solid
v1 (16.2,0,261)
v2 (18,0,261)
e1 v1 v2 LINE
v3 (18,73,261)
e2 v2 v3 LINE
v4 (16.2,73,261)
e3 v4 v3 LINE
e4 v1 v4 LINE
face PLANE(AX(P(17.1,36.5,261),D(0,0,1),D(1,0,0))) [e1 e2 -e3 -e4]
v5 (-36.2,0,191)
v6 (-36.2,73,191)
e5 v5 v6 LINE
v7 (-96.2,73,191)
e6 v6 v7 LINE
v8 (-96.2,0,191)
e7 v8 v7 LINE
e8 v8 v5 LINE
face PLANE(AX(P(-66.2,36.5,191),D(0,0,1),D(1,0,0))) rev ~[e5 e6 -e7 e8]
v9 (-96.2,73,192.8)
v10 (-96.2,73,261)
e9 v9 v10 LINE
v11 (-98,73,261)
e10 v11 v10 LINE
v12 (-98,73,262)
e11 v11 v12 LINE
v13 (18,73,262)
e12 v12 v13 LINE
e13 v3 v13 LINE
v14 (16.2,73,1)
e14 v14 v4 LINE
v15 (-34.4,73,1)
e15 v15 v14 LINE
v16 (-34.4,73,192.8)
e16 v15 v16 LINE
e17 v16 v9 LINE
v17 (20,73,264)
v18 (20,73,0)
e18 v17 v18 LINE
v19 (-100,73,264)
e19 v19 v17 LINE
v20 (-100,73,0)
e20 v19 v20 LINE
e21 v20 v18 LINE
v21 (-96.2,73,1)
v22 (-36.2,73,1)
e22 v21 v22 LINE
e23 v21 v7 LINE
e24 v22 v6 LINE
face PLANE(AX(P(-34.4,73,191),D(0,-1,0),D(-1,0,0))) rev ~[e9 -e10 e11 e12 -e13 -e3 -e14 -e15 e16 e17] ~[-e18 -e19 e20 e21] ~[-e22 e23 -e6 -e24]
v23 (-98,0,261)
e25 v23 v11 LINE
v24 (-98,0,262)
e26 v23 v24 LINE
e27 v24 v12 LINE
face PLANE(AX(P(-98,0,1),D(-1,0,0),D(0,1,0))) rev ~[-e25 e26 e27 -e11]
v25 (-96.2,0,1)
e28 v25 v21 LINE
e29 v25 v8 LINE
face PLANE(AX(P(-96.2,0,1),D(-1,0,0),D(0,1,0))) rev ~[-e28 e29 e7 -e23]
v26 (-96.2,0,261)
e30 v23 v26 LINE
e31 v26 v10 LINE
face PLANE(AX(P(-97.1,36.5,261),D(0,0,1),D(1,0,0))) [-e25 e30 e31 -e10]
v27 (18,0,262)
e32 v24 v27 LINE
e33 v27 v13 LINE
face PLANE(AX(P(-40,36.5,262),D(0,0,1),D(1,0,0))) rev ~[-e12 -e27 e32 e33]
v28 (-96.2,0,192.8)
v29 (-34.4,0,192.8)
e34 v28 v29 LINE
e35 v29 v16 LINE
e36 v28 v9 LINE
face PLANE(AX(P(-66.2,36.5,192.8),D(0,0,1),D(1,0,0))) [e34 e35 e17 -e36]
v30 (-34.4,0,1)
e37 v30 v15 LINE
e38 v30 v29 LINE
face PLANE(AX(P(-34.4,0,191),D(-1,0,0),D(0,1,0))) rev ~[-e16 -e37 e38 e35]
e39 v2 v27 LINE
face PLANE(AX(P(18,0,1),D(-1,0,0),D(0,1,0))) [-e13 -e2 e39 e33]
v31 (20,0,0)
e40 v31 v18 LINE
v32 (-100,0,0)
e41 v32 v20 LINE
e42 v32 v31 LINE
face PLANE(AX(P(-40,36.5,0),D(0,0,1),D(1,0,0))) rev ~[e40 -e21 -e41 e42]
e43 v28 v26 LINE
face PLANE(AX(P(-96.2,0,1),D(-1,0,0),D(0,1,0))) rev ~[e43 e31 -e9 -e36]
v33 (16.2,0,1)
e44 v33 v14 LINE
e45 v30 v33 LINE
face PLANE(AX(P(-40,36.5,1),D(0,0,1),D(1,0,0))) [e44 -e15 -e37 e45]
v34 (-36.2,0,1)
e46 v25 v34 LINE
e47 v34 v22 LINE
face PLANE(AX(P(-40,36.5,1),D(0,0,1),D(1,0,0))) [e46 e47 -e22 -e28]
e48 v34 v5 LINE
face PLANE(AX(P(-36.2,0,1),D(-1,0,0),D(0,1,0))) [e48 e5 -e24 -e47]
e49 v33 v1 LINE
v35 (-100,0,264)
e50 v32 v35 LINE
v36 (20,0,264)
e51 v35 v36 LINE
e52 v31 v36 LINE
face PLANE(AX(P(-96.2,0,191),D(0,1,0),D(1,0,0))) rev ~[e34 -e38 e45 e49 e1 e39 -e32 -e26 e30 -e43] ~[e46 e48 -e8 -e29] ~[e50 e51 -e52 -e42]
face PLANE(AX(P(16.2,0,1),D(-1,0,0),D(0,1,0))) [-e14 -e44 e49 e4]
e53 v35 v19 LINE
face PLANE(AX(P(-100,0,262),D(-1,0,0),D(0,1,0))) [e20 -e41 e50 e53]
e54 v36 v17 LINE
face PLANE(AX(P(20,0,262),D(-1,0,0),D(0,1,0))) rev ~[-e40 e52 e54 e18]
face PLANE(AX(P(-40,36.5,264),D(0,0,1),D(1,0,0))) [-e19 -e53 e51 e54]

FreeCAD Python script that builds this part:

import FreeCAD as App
import Part
import Sketcher
from FreeCAD import Vector


def add_polygon(sketch, points):
    """Adds a closed chain of lines whose ends are joined by coincident constraints."""
    first, n = sketch.GeometryCount, len(points)
    for a, b in zip(points, points[1:] + points[:1]):
        sketch.addGeometry(Part.LineSegment(App.Vector(*a, 0), App.Vector(*b, 0)), False)
    for i in range(n):
        sketch.addConstraint(Sketcher.Constraint("Coincident", first + i, 2, first + (i + 1) % n, 1))

doc = App.newDocument("Part")
params = doc.addObject("Spreadsheet::Sheet", "Params")
for row, (alias, value) in enumerate([
    ("sketch1_width", "120 mm"),
    ("sketch1_height", "73 mm"),
    ("pad1_length", "1 mm"),
    ("sketch2_width", "2 mm"),
    ("sketch2_height", "73 mm"),
    ("pad2_length", "261 mm"),
    ("sketch3_width", "120 mm"),
    ("sketch3_height", "73 mm"),
    ("pad3_length", "2 mm"),
    ("sketch4_height", "73 mm"),
    ("sketch4_width", "1.8 mm"),
    ("pad4_length", "260 mm"),
    ("sketch5_height", "73 mm"),
    ("sketch5_width", "1.8 mm"),
    ("pad5_length", "190 mm"),
    ("sketch6_height", "73 mm"),
    ("sketch6_width", "61.8 mm"),
    ("pad6_length", "1.8 mm"),
], start=1):
    params.set(f"A{row}", alias)
    params.set(f"B{row}", "=" + value)
    params.setAlias(f"B{row}", alias)

body = doc.addObject("PartDesign::Body", "Body")

sketch1 = doc.addObject("Sketcher::SketchObject", "Sketch")
body.addObject(sketch1)
sketch1.AttachmentSupport = (doc.XY_Plane, [""])
sketch1.MapMode = "FlatFace"
add_polygon(sketch1, [(-100, 73), (-100, 0), (20, 0), (20, 73)])
sketch1.addConstraint([
    Sketcher.Constraint("Vertical", 0),
    Sketcher.Constraint("Horizontal", 1),
    Sketcher.Constraint("Vertical", 2),
    Sketcher.Constraint("Horizontal", 3),
    Sketcher.Constraint("PointOnObject", 0, 2, -1),
    Sketcher.Constraint("DistanceX", 1, 1, 1, 2, 120.0),
    Sketcher.Constraint("DistanceY", 0, 2, 0, 1, 73.0),
    Sketcher.Constraint("DistanceX", 0, 2, -1, 1, 100.0),
])
sketch1.setExpression("Constraints[9]", "Params.sketch1_width")
sketch1.setExpression("Constraints[10]", "Params.sketch1_height")
pad1 = doc.addObject("PartDesign::Pad", "Pad")
body.addObject(pad1)
pad1.Profile = sketch1
pad1.setExpression("Length", "Params.pad1_length")

sketch2 = doc.addObject("Sketcher::SketchObject", "Sketch001")
body.addObject(sketch2)
sketch2.AttachmentSupport = (doc.XY_Plane, [""])
sketch2.MapMode = "FlatFace"
sketch2.AttachmentOffset = App.Placement(Vector(0, 0, 1), App.Rotation())
add_polygon(sketch2, [(-100, 73), (-100, 0), (-98, 0), (-98, 73)])
add_polygon(sketch2, [(18, 73), (18, 0), (20, 0), (20, 73)])
sketch2.addConstraint([
    Sketcher.Constraint("Vertical", 0),
    Sketcher.Constraint("Horizontal", 1),
    Sketcher.Constraint("Vertical", 2),
    Sketcher.Constraint("Horizontal", 3),
    Sketcher.Constraint("Vertical", 4),
    Sketcher.Constraint("Horizontal", 5),
    Sketcher.Constraint("Vertical", 6),
    Sketcher.Constraint("Horizontal", 7),
    Sketcher.Constraint("PointOnObject", 0, 2, -1),
    Sketcher.Constraint("PointOnObject", 4, 2, -1),
    Sketcher.Constraint("Horizontal", 3, 2, 6, 2),
    Sketcher.Constraint("Equal", 3, 5),
    Sketcher.Constraint("DistanceX", 1, 1, 1, 2, 2.0),
    Sketcher.Constraint("DistanceY", 0, 2, 0, 1, 73.0),
    Sketcher.Constraint("DistanceX", 0, 2, -1, 1, 100.0),
    Sketcher.Constraint("DistanceX", -1, 1, 4, 2, 18.0),
])
sketch2.setExpression("Constraints[20]", "Params.sketch2_width")
sketch2.setExpression("Constraints[21]", "Params.sketch2_height")
pad2 = doc.addObject("PartDesign::Pad", "Pad001")
body.addObject(pad2)
pad2.Profile = sketch2
pad2.setExpression("Length", "Params.pad2_length")

sketch3 = doc.addObject("Sketcher::SketchObject", "Sketch002")
body.addObject(sketch3)
sketch3.AttachmentSupport = (doc.XY_Plane, [""])
sketch3.MapMode = "FlatFace"
sketch3.AttachmentOffset = App.Placement(Vector(0, 0, 262), App.Rotation())
add_polygon(sketch3, [(-100, 73), (-100, 0), (20, 0), (20, 73)])
sketch3.addConstraint([
    Sketcher.Constraint("Vertical", 0),
    Sketcher.Constraint("Horizontal", 1),
    Sketcher.Constraint("Vertical", 2),
    Sketcher.Constraint("Horizontal", 3),
    Sketcher.Constraint("PointOnObject", 0, 2, -1),
    Sketcher.Constraint("DistanceX", 1, 1, 1, 2, 120.0),
    Sketcher.Constraint("DistanceY", 0, 2, 0, 1, 73.0),
    Sketcher.Constraint("DistanceX", 0, 2, -1, 1, 100.0),
])
sketch3.setExpression("Constraints[9]", "Params.sketch3_width")
sketch3.setExpression("Constraints[10]", "Params.sketch3_height")
pad3 = doc.addObject("PartDesign::Pad", "Pad002")
body.addObject(pad3)
pad3.Profile = sketch3
pad3.setExpression("Length", "Params.pad3_length")

sketch4 = doc.addObject("Sketcher::SketchObject", "Sketch003")
body.addObject(sketch4)
sketch4.AttachmentSupport = (doc.XY_Plane, [""])
sketch4.MapMode = "FlatFace"
sketch4.AttachmentOffset = App.Placement(Vector(0, 0, 1), App.Rotation())
add_polygon(sketch4, [(-98, 73), (-98, 0), (-96.2, 0), (-96.2, 73)])
add_polygon(sketch4, [(16.2, 73), (16.2, 0), (18, 0), (18, 73)])
sketch4.addConstraint([
    Sketcher.Constraint("Vertical", 0),
    Sketcher.Constraint("Horizontal", 1),
    Sketcher.Constraint("Vertical", 2),
    Sketcher.Constraint("Horizontal", 3),
    Sketcher.Constraint("Vertical", 4),
    Sketcher.Constraint("Horizontal", 5),
    Sketcher.Constraint("Vertical", 6),
    Sketcher.Constraint("Horizontal", 7),
    Sketcher.Constraint("PointOnObject", 0, 2, -1),
    Sketcher.Constraint("PointOnObject", 4, 2, -1),
    Sketcher.Constraint("Horizontal", 3, 2, 6, 2),
    Sketcher.Constraint("Equal", 3, 5),
    Sketcher.Constraint("DistanceY", 0, 2, 0, 1, 73.0),
    Sketcher.Constraint("DistanceX", 1, 1, 1, 2, 1.8),
    Sketcher.Constraint("DistanceX", 0, 2, -1, 1, 98.0),
    Sketcher.Constraint("DistanceX", -1, 1, 5, 2, 18.0),
])
sketch4.setExpression("Constraints[20]", "Params.sketch4_height")
sketch4.setExpression("Constraints[21]", "Params.sketch4_width")
pad4 = doc.addObject("PartDesign::Pad", "Pad003")
body.addObject(pad4)
pad4.Profile = sketch4
pad4.setExpression("Length", "Params.pad4_length")

sketch5 = doc.addObject("Sketcher::SketchObject", "Sketch004")
body.addObject(sketch5)
sketch5.AttachmentSupport = (doc.XY_Plane, [""])
sketch5.MapMode = "FlatFace"
sketch5.AttachmentOffset = App.Placement(Vector(0, 0, 1), App.Rotation())
add_polygon(sketch5, [(-36.2, 73), (-36.2, 0), (-34.4, 0), (-34.4, 73)])
sketch5.addConstraint([
    Sketcher.Constraint("Vertical", 0),
    Sketcher.Constraint("Horizontal", 1),
    Sketcher.Constraint("Vertical", 2),
    Sketcher.Constraint("Horizontal", 3),
    Sketcher.Constraint("PointOnObject", 0, 2, -1),
    Sketcher.Constraint("DistanceY", 0, 2, 0, 1, 73.0),
    Sketcher.Constraint("DistanceX", 1, 1, 1, 2, 1.8),
    Sketcher.Constraint("DistanceX", 0, 2, -1, 1, 36.2),
])
sketch5.setExpression("Constraints[9]", "Params.sketch5_height")
sketch5.setExpression("Constraints[10]", "Params.sketch5_width")
pad5 = doc.addObject("PartDesign::Pad", "Pad004")
body.addObject(pad5)
pad5.Profile = sketch5
pad5.setExpression("Length", "Params.pad5_length")

sketch6 = doc.addObject("Sketcher::SketchObject", "Sketch005")
body.addObject(sketch6)
sketch6.AttachmentSupport = (doc.XY_Plane, [""])
sketch6.MapMode = "FlatFace"
sketch6.AttachmentOffset = App.Placement(Vector(0, 0, 191), App.Rotation())
add_polygon(sketch6, [(-96, 73), (-96, 0), (-34, 0), (-34, 73)])
sketch6.addConstraint([
    Sketcher.Constraint("Vertical", 0),
    Sketcher.Constraint("Horizontal", 1),
    Sketcher.Constraint("Vertical", 2),
    Sketcher.Constraint("Horizontal", 3),
    Sketcher.Constraint("PointOnObject", 0, 2, -1),
    Sketcher.Constraint("DistanceY", 0, 2, 0, 1, 73.0),
    Sketcher.Constraint("DistanceX", 1, 1, 1, 2, 61.8),
    Sketcher.Constraint("DistanceX", 0, 2, -1, 1, 96.2),
])
sketch6.setExpression("Constraints[9]", "Params.sketch6_height")
sketch6.setExpression("Constraints[10]", "Params.sketch6_width")
pad6 = doc.addObject("PartDesign::Pad", "Pad005")
body.addObject(pad6)
pad6.Profile = sketch6
pad6.setExpression("Length", "Params.pad6_length")

doc.recompute()
